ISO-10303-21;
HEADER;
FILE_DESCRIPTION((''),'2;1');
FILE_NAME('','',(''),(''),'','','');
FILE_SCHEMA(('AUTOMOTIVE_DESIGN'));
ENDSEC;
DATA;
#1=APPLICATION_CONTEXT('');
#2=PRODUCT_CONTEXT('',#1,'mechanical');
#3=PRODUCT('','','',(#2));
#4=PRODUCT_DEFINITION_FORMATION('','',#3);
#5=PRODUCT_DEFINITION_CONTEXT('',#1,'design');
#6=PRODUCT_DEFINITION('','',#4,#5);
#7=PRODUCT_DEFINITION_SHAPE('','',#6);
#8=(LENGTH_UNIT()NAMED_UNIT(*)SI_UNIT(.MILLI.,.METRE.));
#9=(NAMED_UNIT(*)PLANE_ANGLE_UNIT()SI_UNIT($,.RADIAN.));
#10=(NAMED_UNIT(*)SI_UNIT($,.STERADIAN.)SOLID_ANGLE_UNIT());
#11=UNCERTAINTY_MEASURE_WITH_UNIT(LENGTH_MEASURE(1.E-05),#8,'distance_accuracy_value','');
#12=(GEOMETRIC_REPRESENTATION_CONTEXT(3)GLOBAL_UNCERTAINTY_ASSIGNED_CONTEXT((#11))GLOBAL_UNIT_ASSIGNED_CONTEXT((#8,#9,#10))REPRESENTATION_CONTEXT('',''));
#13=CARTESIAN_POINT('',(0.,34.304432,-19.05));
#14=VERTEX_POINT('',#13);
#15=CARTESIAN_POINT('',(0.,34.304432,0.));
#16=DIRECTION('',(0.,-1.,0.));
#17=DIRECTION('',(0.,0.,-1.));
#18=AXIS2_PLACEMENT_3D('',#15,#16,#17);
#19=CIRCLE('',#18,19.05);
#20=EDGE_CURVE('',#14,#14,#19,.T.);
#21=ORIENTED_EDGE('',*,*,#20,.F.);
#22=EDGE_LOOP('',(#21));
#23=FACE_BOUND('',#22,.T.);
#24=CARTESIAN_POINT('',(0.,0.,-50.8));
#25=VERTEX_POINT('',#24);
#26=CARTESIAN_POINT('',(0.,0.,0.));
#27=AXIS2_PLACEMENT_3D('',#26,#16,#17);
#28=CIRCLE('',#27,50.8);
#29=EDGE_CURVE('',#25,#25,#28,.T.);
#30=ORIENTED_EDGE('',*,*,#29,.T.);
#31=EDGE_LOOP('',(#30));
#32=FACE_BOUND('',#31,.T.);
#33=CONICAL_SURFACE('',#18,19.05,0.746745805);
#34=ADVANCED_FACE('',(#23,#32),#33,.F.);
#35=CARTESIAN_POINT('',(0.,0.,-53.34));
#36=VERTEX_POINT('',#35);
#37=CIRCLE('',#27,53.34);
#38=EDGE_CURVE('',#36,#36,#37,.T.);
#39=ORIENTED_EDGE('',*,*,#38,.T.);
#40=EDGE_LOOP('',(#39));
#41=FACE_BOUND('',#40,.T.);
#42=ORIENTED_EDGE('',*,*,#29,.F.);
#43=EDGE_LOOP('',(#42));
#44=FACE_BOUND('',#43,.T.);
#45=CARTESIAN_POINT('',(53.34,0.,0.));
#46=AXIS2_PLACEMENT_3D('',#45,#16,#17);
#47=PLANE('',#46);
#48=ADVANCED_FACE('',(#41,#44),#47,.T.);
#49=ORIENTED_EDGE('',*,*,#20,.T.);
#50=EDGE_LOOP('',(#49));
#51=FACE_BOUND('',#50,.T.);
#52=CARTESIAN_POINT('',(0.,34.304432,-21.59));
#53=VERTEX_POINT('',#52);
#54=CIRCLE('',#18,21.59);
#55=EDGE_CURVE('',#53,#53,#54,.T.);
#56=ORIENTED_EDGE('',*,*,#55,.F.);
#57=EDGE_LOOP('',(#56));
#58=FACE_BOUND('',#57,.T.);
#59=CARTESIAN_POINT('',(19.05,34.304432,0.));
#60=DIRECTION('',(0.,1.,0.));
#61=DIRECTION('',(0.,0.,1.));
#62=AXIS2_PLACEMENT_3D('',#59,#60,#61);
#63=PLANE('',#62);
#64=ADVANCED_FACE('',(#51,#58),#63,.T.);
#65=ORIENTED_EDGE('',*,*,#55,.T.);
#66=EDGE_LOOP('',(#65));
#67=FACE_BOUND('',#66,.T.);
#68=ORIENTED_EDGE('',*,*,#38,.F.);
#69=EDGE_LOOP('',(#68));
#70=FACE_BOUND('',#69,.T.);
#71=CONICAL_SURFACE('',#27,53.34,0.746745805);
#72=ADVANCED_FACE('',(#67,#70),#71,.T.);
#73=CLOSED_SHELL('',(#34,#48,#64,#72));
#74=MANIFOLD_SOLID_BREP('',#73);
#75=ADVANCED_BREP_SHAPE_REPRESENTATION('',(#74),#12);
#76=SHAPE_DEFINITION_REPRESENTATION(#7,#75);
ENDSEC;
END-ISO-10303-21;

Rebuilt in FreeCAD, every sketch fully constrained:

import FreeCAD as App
import Part
import Sketcher

V = App.Vector
Q = App.Units.Quantity

doc = App.newDocument("Part")
body = doc.addObject("PartDesign::Body", "Body")

sketch1 = body.newObject("Sketcher::SketchObject", "Sketch")
sketch1.AttachmentSupport = (doc.getObject("XY_Plane"), [""])
sketch1.MapMode = "FlatFace"
sketch1.addGeometry(Part.LineSegment(V(50.8, 0, 0), V(53.34, 0, 0)), False)
sketch1.addGeometry(Part.LineSegment(V(53.34, 0, 0), V(25.4, 30.1879, 0)), False)
sketch1.addGeometry(Part.LineSegment(V(25.4, 30.1879, 0), V(21.59, 34.304432, 0)), False)
sketch1.addGeometry(Part.LineSegment(V(21.59, 34.304432, 0), V(19.05, 34.304432, 0)), False)
sketch1.addGeometry(Part.LineSegment(V(19.05, 34.304432, 0), V(50.8, 0, 0)), False)
sketch1.addConstraint(Sketcher.Constraint("Coincident", 0, 2, 1, 1))
sketch1.addConstraint(Sketcher.Constraint("Coincident", 1, 2, 2, 1))
sketch1.addConstraint(Sketcher.Constraint("Coincident", 2, 2, 3, 1))
sketch1.addConstraint(Sketcher.Constraint("Coincident", 3, 2, 4, 1))
sketch1.addConstraint(Sketcher.Constraint("Coincident", 4, 2, 0, 1))
sketch1.addConstraint(Sketcher.Constraint("Horizontal", 0))
sketch1.addConstraint(Sketcher.Constraint("Horizontal", 3))
sketch1.addConstraint(Sketcher.Constraint("PointOnObject", 0, 2, -1))
sketch1.addConstraint(Sketcher.Constraint("Parallel", 1, 2))
sketch1.addConstraint(Sketcher.Constraint("Parallel", 2, 4))
sketch1.addConstraint(Sketcher.Constraint("DistanceX", 0, 1, 0, 2, Q("0.1 in")))
sketch1.addConstraint(Sketcher.Constraint("DistanceX", -1, 1, 1, 2, Q("1 in")))
sketch1.addConstraint(Sketcher.Constraint("DistanceX", -1, 1, 4, 2, Q("2 in")))
sketch1.addConstraint(Sketcher.Constraint("DistanceX", -1, 1, 2, 2, Q("0.85 in")))
sketch1.addConstraint(Sketcher.Constraint("DistanceY", -1, 1, 1, 2, Q("1.1885 in")))
revolution = body.newObject("PartDesign::Revolution", "Revolution")
revolution.Profile = sketch1
revolution.ReferenceAxis = (sketch1, ["V_Axis"])
revolution.Angle = 360

doc.recompute()
